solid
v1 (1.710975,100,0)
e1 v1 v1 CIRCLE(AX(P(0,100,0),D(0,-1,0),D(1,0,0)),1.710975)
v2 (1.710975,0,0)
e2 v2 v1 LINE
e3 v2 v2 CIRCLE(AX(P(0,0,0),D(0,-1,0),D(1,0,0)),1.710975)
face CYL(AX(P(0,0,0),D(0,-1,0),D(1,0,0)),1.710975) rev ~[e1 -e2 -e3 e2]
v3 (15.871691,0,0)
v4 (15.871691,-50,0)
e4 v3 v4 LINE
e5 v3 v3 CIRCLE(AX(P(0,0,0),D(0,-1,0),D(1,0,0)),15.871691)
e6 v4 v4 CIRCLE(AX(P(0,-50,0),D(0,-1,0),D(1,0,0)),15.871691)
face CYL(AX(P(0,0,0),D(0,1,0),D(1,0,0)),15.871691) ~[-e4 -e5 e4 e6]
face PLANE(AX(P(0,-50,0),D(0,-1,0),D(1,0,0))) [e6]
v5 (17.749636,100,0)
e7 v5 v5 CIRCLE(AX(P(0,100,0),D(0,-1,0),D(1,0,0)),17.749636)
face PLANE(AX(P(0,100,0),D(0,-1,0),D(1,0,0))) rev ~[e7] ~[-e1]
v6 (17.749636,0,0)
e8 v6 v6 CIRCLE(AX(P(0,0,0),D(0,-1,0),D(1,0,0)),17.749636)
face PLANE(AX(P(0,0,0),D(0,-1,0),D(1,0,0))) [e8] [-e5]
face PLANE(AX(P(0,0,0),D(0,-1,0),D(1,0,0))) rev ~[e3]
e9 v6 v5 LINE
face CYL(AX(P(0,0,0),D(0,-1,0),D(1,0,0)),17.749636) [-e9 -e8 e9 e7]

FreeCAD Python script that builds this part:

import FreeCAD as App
import Part
import Sketcher
from FreeCAD import Vector
Q = App.Units.Quantity

doc = App.newDocument("Part")
body = doc.addObject("PartDesign::Body", "Body")

sketch1 = body.newObject("Sketcher::SketchObject", "Sketch")
sketch1.AttachmentSupport = (doc.getObject("XZ_Plane"), [""])
sketch1.MapMode = "FlatFace"
sketch1.addGeometry([
    Part.Circle(Vector(0, 0, 0), Vector(0, 0, 1), 17.7),
    Part.Circle(Vector(0, 0, 0), Vector(0, 0, 1), 1.7),
], False)
sketch1.addConstraint([
    Sketcher.Constraint("Coincident", 0, 3, -1, 1),
    Sketcher.Constraint("Coincident", 1, 3, -1, 1),
    Sketcher.Constraint("Diameter", 0, Q("35.499272 mm")),
    Sketcher.Constraint("Diameter", 1, Q("3.42195 mm")),
])
pad1 = body.newObject("PartDesign::Pad", "Pad")
pad1.Profile = sketch1
pad1.Length = 100
pad1.Reversed = True

sketch2 = body.newObject("Sketcher::SketchObject", "Sketch001")
sketch2.AttachmentSupport = (doc.getObject("XZ_Plane"), [""])
sketch2.MapMode = "FlatFace"
sketch2.addGeometry(Part.Circle(Vector(0, 0, 0), Vector(0, 0, 1), 16), False)
sketch2.addConstraint([
    Sketcher.Constraint("Coincident", 0, 3, -1, 1),
    Sketcher.Constraint("Diameter", 0, Q("31.743382 mm")),
])
pad2 = body.newObject("PartDesign::Pad", "Pad001")
pad2.Profile = sketch2
pad2.Length = 50

doc.recompute()
